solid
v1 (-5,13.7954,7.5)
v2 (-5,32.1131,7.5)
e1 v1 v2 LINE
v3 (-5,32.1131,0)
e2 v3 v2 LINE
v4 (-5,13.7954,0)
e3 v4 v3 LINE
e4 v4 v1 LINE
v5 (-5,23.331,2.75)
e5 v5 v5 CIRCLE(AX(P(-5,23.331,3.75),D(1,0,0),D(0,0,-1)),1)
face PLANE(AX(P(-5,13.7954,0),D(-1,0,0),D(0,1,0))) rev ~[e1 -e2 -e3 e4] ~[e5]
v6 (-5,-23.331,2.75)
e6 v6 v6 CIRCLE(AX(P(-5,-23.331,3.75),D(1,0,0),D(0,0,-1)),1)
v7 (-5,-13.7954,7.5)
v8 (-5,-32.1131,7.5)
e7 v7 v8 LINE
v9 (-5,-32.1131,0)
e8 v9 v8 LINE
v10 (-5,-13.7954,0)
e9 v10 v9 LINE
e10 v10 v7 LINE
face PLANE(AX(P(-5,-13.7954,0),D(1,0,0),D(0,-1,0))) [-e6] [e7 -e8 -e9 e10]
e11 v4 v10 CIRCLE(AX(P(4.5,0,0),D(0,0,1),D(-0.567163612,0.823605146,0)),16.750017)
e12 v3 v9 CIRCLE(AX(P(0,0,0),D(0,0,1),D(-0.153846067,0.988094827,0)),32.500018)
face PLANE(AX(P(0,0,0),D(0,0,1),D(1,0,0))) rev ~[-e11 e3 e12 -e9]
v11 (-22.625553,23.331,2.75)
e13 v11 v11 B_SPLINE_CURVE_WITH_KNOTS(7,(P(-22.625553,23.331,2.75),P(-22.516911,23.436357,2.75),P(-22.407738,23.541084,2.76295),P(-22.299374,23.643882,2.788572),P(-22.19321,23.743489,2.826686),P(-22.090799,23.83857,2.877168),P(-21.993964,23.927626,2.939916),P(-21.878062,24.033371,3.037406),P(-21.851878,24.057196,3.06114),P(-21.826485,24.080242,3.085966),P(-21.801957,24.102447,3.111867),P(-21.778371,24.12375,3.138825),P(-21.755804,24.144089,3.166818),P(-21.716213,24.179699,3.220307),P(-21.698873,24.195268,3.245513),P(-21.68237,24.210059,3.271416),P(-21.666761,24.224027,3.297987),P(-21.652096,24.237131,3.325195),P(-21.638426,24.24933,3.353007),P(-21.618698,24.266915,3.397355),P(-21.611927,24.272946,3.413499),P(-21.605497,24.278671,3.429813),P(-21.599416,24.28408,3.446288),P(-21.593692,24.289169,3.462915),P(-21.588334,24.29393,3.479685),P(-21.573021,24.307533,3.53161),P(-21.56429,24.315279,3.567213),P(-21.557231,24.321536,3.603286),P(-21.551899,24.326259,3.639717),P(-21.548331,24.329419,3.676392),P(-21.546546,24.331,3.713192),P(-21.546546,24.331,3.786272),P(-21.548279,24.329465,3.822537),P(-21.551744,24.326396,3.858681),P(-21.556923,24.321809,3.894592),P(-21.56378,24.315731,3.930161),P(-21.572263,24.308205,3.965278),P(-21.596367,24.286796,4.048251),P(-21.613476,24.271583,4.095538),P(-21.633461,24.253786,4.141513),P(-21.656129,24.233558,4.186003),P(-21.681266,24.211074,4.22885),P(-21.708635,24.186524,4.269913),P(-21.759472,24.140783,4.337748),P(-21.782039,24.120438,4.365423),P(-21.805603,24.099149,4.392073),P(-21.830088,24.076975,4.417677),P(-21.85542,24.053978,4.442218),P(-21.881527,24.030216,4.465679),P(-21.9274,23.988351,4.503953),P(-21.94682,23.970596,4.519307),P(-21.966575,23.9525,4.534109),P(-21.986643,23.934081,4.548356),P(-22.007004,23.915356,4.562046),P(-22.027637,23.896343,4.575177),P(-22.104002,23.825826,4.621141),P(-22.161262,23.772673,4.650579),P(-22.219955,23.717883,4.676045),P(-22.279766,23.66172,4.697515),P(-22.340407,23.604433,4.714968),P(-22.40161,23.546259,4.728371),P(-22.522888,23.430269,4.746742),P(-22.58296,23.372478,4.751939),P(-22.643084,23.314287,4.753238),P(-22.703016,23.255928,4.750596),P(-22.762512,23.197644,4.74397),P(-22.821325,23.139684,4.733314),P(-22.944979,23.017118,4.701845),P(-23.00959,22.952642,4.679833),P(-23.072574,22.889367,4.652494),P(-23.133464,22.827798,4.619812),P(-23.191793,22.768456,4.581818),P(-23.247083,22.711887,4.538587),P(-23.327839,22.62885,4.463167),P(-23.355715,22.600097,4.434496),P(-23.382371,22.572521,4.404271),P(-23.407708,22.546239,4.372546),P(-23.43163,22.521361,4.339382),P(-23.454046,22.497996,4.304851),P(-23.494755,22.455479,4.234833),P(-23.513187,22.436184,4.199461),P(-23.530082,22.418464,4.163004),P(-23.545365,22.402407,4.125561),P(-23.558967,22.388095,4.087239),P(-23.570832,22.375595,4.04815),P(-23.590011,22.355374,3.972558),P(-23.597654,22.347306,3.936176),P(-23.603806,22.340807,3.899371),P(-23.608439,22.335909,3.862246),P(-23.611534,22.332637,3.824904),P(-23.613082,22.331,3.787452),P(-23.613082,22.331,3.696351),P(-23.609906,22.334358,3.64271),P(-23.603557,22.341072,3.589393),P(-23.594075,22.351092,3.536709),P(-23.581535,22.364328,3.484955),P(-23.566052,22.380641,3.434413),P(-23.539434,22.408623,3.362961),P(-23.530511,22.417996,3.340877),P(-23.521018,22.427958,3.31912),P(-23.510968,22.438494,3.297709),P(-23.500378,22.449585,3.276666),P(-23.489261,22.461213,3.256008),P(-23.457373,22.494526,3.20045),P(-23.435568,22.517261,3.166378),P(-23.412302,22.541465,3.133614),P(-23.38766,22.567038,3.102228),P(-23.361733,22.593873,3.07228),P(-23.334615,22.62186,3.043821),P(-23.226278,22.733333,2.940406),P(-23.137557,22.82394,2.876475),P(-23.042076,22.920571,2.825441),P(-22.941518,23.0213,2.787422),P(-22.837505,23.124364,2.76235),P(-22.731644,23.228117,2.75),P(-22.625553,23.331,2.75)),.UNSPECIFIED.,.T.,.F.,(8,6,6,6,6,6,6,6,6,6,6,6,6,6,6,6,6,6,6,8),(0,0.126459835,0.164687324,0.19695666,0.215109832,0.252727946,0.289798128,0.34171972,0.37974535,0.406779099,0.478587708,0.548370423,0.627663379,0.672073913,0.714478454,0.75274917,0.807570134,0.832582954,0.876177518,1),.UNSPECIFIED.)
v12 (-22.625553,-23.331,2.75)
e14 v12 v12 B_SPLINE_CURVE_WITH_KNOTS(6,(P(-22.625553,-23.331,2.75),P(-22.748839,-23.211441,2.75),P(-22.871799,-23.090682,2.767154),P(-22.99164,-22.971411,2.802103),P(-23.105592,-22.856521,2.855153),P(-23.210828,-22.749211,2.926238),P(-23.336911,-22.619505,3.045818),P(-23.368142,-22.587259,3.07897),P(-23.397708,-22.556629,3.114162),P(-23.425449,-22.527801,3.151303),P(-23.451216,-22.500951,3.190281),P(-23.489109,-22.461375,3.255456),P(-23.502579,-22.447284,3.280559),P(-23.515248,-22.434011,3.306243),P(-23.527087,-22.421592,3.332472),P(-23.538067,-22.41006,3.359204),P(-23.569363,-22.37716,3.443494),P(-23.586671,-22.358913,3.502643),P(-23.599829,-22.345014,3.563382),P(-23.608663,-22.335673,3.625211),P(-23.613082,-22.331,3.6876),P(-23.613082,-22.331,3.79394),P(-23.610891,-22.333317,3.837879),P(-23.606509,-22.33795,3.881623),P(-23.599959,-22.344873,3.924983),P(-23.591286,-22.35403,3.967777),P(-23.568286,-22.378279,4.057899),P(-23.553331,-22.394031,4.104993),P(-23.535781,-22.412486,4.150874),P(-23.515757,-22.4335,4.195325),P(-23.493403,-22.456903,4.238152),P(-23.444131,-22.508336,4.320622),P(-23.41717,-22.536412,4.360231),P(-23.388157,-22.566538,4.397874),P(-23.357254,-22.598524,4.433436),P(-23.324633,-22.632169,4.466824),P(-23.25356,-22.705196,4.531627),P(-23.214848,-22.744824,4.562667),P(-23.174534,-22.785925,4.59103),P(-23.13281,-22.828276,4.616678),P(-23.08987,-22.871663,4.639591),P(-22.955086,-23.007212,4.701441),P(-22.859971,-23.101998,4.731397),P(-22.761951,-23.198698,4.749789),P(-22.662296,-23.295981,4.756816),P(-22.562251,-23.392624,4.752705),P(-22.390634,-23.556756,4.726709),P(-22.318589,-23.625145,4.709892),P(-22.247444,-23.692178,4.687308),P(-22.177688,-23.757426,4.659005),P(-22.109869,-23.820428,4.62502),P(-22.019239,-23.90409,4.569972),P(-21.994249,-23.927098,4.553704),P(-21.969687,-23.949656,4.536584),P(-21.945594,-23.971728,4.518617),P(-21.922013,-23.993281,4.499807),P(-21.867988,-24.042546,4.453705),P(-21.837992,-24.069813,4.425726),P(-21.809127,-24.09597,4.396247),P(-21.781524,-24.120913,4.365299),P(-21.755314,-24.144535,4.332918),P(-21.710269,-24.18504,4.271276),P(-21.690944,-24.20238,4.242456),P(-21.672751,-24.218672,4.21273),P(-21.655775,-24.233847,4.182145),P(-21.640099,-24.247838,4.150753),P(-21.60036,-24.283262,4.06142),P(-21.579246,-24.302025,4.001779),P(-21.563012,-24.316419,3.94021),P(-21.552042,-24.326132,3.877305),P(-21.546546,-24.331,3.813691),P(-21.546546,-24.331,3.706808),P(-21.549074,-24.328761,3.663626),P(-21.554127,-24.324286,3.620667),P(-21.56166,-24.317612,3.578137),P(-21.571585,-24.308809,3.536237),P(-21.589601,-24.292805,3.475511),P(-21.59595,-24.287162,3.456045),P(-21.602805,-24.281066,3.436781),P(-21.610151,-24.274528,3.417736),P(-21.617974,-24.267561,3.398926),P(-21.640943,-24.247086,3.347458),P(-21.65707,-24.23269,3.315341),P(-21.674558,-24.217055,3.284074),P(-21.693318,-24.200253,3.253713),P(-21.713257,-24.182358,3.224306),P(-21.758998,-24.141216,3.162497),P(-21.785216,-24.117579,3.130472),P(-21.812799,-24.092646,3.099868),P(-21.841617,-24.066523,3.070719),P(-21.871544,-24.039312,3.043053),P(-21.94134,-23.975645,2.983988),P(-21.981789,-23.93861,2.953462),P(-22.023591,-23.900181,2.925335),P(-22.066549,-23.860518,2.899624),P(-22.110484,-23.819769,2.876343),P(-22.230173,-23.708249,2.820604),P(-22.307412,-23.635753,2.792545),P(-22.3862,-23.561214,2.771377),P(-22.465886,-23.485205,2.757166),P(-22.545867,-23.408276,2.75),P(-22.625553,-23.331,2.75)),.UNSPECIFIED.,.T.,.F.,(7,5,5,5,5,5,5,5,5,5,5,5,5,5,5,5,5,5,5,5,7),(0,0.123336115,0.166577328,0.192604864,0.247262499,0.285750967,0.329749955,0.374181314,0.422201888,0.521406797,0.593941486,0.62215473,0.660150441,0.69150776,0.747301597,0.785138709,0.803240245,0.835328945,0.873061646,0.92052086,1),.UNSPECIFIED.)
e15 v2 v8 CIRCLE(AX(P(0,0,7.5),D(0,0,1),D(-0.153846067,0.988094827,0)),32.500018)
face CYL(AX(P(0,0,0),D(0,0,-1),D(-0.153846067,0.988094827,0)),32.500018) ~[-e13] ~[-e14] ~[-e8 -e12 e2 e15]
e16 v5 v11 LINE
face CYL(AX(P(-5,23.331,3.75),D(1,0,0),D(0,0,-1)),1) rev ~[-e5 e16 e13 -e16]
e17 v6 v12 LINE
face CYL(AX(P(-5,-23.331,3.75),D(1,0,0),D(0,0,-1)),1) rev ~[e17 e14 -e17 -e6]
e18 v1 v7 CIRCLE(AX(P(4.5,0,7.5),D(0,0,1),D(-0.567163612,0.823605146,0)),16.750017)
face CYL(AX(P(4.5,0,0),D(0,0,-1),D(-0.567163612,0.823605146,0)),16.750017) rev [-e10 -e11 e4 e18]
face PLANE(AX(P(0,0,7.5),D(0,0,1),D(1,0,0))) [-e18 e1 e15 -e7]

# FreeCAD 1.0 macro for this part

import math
import FreeCAD as App
import Part
import Sketcher
from FreeCAD import Vector
Q = App.Units.Quantity

doc = App.newDocument("Part")
params = doc.addObject("Spreadsheet::Sheet", "Params")
for row, (alias, value) in enumerate([
    ("sketch1_radius", "32.5 mm"),
    ("sketch1_radius2", "16.75 mm"),
    ("pad1_length", "7.5 mm"),
    ("sketch2_diameter", "2 mm"),
    ("pocket1_length", "25.4 mm"),
], start=1):
    params.set(f"A{row}", alias)
    params.set(f"B{row}", "=" + value)
    params.setAlias(f"B{row}", alias)

body = doc.addObject("PartDesign::Body", "Body")

# Sketch on XY plane
sketch1 = body.newObject("Sketcher::SketchObject", "Sketch")
sketch1.AttachmentSupport = (doc.getObject("XY_Plane"), [""])
sketch1.MapMode = "FlatFace"
sketch1.addGeometry(Part.LineSegment(Vector(-5, 14, 0), Vector(-5, 32, 0)), False)
sketch1.addGeometry(Part.ArcOfCircle(Part.Circle(Vector(0, 0, 0), Vector(0, 0, 1), 33), math.radians(99), math.radians(261)), False)
sketch1.addGeometry(Part.LineSegment(Vector(-5, -32, 0), Vector(-5, -14, 0)), False)
sketch1.addGeometry(Part.ArcOfCircle(Part.Circle(Vector(4, 0, 0), Vector(0, 0, 1), 17), math.radians(125), math.radians(235)), False)
sketch1.addConstraint(Sketcher.Constraint("Coincident", 0, 2, 1, 1))
sketch1.addConstraint(Sketcher.Constraint("Coincident", 1, 2, 2, 1))
sketch1.addConstraint(Sketcher.Constraint("Coincident", 2, 2, 3, 2))
sketch1.addConstraint(Sketcher.Constraint("Coincident", 3, 1, 0, 1))
sketch1.addConstraint(Sketcher.Constraint("Vertical", 0))
sketch1.addConstraint(Sketcher.Constraint("Vertical", 2))
sketch1.addConstraint(Sketcher.Constraint("Coincident", 1, 3, -1, 1))
sketch1.addConstraint(Sketcher.Constraint("Symmetric", 2, 2, 3, 1, -1))
sketch1.addConstraint(Sketcher.Constraint("Radius", 1, Q("32.5 mm")))
sketch1.addConstraint(Sketcher.Constraint("Radius", 3, Q("16.75 mm")))
sketch1.addConstraint(Sketcher.Constraint("DistanceX", 0, 2, -1, 1, Q("5 mm")))
sketch1.addConstraint(Sketcher.Constraint("DistanceX", -1, 1, 3, 3, Q("4.5 mm")))
sketch1.setExpression("Constraints[8]", "Params.sketch1_radius")
sketch1.setExpression("Constraints[9]", "Params.sketch1_radius2")
pad1 = body.newObject("PartDesign::Pad", "Pad")
pad1.Profile = sketch1
pad1.setExpression("Length", "Params.pad1_length")

# Sketch on YZ plane
sketch2 = body.newObject("Sketcher::SketchObject", "Sketch001")
sketch2.AttachmentSupport = (doc.getObject("YZ_Plane"), [""])
sketch2.MapMode = "FlatFace"
sketch2.AttachmentOffset = App.Placement(Vector(0, 0, -5), App.Rotation())
sketch2.addGeometry(Part.Circle(Vector(-23.3, 3.8, 0), Vector(0, 0, 1), 1), False)
sketch2.addGeometry(Part.Circle(Vector(23.3, 3.8, 0), Vector(0, 0, 1), 1), False)
sketch2.addConstraint(Sketcher.Constraint("Equal", 0, 1))
sketch2.addConstraint(Sketcher.Constraint("Symmetric", 0, 3, 1, 3, -2))
sketch2.addConstraint(Sketcher.Constraint("Diameter", 0, Q("2 mm")))
sketch2.addConstraint(Sketcher.Constraint("DistanceY", -1, 1, 0, 3, Q("3.75 mm")))
sketch2.addConstraint(Sketcher.Constraint("DistanceX", 0, 3, -1, 1, Q("23.331 mm")))
sketch2.setExpression("Constraints[2]", "Params.sketch2_diameter")
pocket1 = body.newObject("PartDesign::Pocket", "Pocket")
pocket1.Profile = sketch2
pocket1.setExpression("Length", "Params.pocket1_length")

doc.recompute()
